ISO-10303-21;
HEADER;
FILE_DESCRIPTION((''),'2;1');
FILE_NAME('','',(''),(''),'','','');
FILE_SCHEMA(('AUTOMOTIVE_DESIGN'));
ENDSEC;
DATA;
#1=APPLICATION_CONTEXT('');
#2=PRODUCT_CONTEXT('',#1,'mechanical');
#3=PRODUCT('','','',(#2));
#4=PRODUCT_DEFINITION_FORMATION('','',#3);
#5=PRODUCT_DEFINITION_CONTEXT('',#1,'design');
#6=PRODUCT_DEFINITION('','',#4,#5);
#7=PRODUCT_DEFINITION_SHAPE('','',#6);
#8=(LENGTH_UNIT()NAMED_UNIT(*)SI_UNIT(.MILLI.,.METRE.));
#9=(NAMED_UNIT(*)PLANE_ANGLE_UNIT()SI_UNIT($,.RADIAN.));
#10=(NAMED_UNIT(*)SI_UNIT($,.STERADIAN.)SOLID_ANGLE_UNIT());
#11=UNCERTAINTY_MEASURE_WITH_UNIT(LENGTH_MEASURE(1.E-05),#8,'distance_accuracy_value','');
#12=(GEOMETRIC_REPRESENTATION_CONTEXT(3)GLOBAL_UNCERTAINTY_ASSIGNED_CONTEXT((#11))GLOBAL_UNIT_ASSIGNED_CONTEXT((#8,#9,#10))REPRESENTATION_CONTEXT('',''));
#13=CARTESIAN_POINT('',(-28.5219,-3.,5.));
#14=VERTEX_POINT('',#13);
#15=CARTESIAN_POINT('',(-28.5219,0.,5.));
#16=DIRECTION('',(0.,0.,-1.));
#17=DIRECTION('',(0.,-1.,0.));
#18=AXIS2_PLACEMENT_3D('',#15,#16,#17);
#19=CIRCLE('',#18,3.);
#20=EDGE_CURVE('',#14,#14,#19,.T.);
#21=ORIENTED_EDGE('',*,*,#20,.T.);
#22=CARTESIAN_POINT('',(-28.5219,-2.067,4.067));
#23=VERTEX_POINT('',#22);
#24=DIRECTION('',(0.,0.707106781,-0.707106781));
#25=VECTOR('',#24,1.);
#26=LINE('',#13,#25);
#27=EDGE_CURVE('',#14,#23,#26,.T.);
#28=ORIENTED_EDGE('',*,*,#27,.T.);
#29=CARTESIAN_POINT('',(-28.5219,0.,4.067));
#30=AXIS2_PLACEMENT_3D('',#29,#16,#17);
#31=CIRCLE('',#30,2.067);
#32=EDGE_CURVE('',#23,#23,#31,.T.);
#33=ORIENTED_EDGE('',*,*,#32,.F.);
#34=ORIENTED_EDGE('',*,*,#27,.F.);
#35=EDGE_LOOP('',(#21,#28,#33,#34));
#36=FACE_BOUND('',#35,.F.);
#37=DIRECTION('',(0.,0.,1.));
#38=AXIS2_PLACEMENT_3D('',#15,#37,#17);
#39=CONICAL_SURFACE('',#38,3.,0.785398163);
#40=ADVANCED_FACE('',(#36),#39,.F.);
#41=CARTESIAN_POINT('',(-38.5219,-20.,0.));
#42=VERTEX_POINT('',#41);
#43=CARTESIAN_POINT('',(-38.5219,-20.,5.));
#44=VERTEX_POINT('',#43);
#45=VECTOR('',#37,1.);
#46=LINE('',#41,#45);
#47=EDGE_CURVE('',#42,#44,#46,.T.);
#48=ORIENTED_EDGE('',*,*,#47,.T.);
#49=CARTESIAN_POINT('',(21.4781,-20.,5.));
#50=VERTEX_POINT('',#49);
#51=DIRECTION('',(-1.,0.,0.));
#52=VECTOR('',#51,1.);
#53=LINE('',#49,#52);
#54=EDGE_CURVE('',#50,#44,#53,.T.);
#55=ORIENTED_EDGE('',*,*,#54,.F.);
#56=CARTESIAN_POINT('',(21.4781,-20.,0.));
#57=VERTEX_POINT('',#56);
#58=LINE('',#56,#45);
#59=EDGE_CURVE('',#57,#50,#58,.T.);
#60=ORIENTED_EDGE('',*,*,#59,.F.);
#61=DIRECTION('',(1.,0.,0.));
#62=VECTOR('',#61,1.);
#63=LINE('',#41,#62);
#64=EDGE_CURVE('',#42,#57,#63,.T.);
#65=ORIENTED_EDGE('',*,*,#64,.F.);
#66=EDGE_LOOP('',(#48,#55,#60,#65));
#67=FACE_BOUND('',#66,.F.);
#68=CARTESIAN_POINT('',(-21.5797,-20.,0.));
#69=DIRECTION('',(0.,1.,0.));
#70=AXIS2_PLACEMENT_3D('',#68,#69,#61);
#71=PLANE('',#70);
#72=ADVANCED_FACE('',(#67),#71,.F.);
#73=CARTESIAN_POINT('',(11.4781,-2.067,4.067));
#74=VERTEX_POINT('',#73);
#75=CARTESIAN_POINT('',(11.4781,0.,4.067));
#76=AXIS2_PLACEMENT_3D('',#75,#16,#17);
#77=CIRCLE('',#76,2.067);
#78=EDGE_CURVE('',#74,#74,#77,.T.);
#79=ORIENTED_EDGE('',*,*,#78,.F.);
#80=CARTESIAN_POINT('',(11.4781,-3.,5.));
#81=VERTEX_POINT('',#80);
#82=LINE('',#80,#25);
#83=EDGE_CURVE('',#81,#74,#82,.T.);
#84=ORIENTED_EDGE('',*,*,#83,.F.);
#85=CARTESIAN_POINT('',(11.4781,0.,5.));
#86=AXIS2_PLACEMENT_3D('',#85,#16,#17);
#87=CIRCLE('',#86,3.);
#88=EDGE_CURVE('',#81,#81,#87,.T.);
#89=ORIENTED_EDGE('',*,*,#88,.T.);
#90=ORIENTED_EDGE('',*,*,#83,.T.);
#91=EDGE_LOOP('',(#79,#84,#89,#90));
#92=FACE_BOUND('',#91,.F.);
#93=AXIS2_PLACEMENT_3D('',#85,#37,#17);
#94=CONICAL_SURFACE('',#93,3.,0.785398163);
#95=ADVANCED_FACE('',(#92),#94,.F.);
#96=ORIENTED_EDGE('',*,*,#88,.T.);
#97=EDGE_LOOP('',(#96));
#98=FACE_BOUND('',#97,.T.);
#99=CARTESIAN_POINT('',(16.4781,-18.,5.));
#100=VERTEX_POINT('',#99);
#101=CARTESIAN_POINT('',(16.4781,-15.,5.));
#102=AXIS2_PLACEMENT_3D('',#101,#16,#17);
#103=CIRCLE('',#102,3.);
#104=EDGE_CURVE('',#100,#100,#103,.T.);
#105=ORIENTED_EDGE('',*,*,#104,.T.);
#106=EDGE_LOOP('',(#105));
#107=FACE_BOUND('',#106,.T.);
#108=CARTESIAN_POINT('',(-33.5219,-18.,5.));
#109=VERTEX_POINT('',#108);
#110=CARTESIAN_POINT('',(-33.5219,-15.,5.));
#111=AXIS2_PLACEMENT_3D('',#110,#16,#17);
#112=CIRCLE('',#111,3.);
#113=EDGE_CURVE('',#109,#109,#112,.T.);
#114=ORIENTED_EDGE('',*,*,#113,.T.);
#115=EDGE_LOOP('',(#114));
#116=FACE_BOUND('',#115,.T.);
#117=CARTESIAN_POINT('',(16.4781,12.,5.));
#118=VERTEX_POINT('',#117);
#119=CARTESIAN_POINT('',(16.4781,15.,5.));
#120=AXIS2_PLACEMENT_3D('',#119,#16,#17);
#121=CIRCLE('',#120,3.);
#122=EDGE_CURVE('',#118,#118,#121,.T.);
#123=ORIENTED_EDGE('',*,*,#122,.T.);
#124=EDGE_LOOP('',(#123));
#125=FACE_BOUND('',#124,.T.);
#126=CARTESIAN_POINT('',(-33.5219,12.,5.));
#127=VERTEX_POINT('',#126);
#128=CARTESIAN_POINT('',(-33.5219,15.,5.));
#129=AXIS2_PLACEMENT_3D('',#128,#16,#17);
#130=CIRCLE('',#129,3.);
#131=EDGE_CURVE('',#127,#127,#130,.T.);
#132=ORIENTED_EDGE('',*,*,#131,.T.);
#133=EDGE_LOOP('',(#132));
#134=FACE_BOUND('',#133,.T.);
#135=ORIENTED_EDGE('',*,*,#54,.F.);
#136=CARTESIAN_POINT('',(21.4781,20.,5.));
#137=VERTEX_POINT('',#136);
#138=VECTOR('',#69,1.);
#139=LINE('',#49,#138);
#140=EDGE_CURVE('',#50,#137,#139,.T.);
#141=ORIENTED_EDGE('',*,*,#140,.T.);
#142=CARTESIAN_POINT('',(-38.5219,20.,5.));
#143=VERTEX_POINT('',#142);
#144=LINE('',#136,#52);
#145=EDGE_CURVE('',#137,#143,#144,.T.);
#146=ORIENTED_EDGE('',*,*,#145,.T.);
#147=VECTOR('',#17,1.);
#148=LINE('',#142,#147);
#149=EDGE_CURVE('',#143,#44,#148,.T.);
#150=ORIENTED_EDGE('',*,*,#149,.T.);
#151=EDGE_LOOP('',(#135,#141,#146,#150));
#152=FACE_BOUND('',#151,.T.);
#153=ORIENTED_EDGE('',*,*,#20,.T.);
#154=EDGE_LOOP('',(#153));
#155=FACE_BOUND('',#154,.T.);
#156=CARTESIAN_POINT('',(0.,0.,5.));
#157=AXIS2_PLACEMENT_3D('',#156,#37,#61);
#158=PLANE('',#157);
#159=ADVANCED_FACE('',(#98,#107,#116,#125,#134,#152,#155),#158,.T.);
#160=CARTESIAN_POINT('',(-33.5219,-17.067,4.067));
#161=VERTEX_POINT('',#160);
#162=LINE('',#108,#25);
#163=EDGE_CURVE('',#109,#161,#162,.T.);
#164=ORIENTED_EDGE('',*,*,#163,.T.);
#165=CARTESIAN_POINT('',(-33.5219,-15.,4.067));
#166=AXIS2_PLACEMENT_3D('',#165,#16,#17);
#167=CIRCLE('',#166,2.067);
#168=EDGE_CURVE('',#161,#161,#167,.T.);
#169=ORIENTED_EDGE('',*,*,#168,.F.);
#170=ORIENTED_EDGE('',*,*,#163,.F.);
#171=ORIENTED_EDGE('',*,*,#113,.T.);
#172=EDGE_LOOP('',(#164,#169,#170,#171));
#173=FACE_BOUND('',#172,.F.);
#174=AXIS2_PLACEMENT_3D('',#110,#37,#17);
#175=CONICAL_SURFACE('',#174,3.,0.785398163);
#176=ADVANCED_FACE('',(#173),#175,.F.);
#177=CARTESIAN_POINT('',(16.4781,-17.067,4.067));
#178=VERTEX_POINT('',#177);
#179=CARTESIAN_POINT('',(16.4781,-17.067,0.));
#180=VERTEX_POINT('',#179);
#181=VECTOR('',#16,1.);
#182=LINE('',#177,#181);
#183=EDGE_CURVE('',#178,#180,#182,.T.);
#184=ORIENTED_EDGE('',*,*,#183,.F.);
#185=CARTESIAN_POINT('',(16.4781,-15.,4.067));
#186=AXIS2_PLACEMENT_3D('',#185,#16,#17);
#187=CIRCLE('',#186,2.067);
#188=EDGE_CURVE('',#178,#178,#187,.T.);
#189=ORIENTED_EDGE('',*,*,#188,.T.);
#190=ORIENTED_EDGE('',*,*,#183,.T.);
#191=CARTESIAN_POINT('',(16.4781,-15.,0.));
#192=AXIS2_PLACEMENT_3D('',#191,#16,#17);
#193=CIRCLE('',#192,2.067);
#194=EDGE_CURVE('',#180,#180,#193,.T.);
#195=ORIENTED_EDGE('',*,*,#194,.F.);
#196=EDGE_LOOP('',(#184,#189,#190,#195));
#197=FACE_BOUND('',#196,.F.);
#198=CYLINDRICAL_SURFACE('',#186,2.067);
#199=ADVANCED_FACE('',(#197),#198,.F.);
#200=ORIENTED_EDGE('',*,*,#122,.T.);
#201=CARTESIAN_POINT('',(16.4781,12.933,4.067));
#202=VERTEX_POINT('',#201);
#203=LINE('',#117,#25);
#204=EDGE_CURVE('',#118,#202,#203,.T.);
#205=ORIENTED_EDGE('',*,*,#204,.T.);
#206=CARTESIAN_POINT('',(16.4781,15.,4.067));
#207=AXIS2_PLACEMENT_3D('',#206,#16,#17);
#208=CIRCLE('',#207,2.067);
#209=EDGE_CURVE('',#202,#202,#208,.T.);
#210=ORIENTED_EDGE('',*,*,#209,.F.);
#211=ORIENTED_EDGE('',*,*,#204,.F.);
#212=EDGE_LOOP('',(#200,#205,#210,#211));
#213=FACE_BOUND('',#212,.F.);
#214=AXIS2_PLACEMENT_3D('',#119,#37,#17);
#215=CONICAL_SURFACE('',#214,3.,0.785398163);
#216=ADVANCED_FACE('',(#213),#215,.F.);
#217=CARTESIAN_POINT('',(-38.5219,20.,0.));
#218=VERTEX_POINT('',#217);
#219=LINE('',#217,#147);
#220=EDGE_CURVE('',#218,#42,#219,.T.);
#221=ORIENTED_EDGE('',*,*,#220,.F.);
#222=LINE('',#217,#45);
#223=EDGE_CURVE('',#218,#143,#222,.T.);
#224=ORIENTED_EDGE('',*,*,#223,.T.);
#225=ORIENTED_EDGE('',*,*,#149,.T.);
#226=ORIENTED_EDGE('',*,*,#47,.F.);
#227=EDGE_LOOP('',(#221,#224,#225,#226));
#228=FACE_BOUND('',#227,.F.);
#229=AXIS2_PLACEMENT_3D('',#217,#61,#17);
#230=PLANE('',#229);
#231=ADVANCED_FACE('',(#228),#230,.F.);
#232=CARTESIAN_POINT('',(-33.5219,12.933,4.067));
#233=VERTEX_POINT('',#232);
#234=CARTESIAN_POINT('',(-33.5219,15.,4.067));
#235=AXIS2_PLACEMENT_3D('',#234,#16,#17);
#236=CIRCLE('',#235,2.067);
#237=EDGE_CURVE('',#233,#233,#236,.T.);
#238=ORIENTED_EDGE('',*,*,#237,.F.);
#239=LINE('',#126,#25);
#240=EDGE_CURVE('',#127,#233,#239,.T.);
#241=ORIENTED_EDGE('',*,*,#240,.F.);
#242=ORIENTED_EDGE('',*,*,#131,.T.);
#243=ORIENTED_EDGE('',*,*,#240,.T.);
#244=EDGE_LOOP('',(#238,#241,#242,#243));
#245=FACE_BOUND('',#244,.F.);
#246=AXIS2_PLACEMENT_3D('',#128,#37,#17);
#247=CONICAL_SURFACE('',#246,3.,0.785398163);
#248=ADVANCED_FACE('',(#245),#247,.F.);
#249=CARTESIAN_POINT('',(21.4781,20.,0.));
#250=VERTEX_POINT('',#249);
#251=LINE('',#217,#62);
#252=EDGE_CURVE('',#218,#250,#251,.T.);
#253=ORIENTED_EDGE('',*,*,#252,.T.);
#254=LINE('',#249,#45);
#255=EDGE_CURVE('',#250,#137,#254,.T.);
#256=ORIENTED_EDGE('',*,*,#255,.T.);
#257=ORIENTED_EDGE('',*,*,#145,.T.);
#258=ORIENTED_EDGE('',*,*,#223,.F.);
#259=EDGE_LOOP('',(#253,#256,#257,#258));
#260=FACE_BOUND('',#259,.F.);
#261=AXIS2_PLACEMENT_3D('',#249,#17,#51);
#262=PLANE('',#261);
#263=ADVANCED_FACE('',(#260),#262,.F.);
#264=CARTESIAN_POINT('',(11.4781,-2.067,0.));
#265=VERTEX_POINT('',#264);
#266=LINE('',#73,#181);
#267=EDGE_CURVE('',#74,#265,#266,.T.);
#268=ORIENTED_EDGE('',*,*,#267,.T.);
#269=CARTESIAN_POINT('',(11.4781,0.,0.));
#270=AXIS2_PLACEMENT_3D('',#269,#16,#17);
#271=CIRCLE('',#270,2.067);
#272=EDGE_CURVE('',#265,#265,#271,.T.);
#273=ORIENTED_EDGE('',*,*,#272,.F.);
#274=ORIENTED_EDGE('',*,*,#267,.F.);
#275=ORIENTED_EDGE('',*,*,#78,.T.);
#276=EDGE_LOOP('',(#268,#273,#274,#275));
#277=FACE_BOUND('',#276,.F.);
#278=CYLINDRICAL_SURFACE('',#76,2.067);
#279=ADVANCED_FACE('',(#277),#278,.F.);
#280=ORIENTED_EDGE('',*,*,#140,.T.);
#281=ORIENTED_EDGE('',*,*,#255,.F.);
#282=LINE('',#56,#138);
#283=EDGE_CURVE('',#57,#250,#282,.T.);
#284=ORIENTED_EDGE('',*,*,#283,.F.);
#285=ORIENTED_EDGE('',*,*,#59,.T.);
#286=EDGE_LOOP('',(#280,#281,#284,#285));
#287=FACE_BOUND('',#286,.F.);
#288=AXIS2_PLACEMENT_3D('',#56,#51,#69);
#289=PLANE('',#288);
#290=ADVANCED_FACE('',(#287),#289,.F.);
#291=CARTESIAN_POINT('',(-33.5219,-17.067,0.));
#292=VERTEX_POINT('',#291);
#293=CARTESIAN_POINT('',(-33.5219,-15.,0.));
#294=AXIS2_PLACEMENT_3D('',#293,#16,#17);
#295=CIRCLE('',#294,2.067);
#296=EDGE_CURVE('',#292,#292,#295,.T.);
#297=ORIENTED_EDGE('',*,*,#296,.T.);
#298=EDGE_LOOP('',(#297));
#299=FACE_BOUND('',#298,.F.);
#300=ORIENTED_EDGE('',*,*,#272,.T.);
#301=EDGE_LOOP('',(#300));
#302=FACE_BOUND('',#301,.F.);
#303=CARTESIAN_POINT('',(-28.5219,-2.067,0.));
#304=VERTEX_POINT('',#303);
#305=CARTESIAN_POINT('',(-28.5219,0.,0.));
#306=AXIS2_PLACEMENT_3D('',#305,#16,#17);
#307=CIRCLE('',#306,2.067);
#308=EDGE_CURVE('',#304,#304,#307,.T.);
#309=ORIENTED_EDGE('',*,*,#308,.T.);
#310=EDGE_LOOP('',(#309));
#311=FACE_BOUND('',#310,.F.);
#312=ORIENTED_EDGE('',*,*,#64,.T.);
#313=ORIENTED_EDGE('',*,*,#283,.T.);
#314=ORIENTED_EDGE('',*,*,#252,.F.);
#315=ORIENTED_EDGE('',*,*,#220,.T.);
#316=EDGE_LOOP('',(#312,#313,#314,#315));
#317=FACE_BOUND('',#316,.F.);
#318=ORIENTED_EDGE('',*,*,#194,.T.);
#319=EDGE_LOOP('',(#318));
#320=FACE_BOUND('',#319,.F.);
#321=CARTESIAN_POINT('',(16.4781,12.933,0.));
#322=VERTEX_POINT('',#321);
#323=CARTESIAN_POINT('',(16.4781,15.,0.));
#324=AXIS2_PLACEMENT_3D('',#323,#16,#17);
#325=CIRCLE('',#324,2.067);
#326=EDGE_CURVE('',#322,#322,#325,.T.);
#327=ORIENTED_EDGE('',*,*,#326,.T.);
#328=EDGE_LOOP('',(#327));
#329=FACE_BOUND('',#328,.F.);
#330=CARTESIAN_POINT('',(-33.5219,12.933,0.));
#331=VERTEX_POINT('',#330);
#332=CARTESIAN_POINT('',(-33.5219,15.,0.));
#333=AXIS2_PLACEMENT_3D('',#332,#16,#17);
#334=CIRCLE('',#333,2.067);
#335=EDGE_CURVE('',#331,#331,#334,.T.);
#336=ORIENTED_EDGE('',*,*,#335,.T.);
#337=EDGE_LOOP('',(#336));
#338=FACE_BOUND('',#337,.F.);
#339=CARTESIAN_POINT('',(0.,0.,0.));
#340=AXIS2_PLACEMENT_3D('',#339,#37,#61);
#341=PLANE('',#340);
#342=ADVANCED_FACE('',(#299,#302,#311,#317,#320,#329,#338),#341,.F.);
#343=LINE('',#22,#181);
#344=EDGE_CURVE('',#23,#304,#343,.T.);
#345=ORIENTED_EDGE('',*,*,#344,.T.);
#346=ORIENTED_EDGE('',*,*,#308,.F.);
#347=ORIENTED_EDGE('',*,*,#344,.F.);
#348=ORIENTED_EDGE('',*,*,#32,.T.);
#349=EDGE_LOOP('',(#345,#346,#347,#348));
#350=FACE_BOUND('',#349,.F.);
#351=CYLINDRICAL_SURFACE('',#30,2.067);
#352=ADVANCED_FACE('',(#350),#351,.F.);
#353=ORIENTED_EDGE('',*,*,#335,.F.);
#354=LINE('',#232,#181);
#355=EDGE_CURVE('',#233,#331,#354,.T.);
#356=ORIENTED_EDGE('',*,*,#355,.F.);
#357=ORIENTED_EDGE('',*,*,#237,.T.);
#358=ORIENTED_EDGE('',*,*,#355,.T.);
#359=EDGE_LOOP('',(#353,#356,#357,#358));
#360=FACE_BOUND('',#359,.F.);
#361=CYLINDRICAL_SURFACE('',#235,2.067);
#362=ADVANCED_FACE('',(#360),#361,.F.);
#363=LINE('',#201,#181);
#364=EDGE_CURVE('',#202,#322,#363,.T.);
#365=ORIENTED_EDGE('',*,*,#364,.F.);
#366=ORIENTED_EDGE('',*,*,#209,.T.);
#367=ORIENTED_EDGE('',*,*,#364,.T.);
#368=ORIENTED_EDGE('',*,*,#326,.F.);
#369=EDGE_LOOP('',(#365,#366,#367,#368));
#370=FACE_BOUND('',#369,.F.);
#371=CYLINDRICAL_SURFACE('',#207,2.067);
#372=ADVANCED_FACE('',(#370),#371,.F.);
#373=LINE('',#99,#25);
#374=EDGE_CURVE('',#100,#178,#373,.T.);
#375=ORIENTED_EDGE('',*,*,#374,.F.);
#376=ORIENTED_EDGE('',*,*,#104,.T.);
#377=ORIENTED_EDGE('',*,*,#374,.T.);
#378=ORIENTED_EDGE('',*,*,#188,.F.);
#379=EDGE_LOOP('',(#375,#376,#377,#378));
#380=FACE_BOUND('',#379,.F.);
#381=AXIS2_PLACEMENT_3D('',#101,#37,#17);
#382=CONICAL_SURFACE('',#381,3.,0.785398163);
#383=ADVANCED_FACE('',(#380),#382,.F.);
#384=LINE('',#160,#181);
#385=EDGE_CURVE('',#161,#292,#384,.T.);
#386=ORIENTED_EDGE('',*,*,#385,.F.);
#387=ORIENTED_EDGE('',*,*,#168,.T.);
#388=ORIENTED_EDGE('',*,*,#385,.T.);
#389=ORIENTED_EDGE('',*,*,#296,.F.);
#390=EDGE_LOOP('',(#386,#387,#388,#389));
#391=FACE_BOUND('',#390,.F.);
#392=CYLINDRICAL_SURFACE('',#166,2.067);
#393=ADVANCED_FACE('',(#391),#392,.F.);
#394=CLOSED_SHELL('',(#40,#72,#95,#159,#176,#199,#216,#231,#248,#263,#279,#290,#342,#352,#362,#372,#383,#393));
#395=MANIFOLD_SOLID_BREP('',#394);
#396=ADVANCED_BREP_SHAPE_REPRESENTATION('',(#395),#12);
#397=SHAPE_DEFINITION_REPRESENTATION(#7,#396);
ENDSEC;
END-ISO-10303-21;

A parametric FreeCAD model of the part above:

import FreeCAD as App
import Part
import Sketcher
from FreeCAD import Vector


def add_polygon(sketch, points):
    """Adds a closed chain of lines whose ends are joined by coincident constraints."""
    first, n = sketch.GeometryCount, len(points)
    for a, b in zip(points, points[1:] + points[:1]):
        sketch.addGeometry(Part.LineSegment(App.Vector(*a, 0), App.Vector(*b, 0)), False)
    for i in range(n):
        sketch.addConstraint(Sketcher.Constraint("Coincident", first + i, 2, first + (i + 1) % n, 1))

doc = App.newDocument("Part")
params = doc.addObject("Spreadsheet::Sheet", "Params")
for row, (alias, value) in enumerate([
    ("sketch1_width", "60 mm"),
    ("sketch1_height", "40 mm"),
    ("pad1_length", "5 mm"),
    ("hole_diameter", "4.134 mm"),
    ("hole_csink_diameter", "6 mm"),
    ("hole2_diameter", "4.134 mm"),
    ("hole2_csink_diameter", "6 mm"),
], start=1):
    params.set(f"A{row}", alias)
    params.set(f"B{row}", "=" + value)
    params.setAlias(f"B{row}", alias)

body = doc.addObject("PartDesign::Body", "Body")

# Sketch on XY plane
sketch1 = body.newObject("Sketcher::SketchObject", "Sketch")
sketch1.AttachmentSupport = (doc.getObject("XY_Plane"), [""])
sketch1.MapMode = "FlatFace"
add_polygon(sketch1, [(-39, -20), (21, -20), (21, 20), (-39, 20)])  # lines 0-3
sketch1.addConstraint(Sketcher.Constraint("Horizontal", 0))
sketch1.addConstraint(Sketcher.Constraint("Vertical", 1))
sketch1.addConstraint(Sketcher.Constraint("Horizontal", 2))
sketch1.addConstraint(Sketcher.Constraint("Vertical", 3))
sketch1.addConstraint(Sketcher.Constraint("DistanceX", 0, 1, 0, 2, 60.0))
sketch1.addConstraint(Sketcher.Constraint("DistanceY", 1, 1, 1, 2, 40.0))
sketch1.addConstraint(Sketcher.Constraint("DistanceY", 0, 2, -1, 1, 20.0))
sketch1.addConstraint(Sketcher.Constraint("DistanceX", -1, 1, 0, 2, 21.478))
sketch1.setExpression("Constraints[8]", "Params.sketch1_width")
sketch1.setExpression("Constraints[9]", "Params.sketch1_height")
pad1 = body.newObject("PartDesign::Pad", "Pad")
pad1.Profile = sketch1
pad1.setExpression("Length", "Params.pad1_length")

# Sketch on XY plane
sketch2 = body.newObject("Sketcher::SketchObject", "Sketch001")
sketch2.AttachmentSupport = (doc.getObject("XY_Plane"), [""])
sketch2.MapMode = "FlatFace"
sketch2.AttachmentOffset = App.Placement(Vector(0, 0, 5), App.Rotation())
sketch2.addGeometry(Part.Circle(Vector(16.5, -15, 0), Vector(0, 0, 1), 2.1), False)
sketch2.addGeometry(Part.Circle(Vector(-33.5, -15, 0), Vector(0, 0, 1), 2.1), False)
sketch2.addGeometry(Part.Circle(Vector(16.5, 15, 0), Vector(0, 0, 1), 2.1), False)
sketch2.addGeometry(Part.Circle(Vector(-33.5, 15, 0), Vector(0, 0, 1), 2.1), False)
sketch2.addConstraint(Sketcher.Constraint("Equal", 0, 1))
sketch2.addConstraint(Sketcher.Constraint("Equal", 1, 2))
sketch2.addConstraint(Sketcher.Constraint("Equal", 2, 3))
sketch2.addConstraint(Sketcher.Constraint("Symmetric", 0, 3, 2, 3, -1))
sketch2.addConstraint(Sketcher.Constraint("Symmetric", 1, 3, 3, 3, -1))
sketch2.addConstraint(Sketcher.Constraint("Horizontal", 0, 3, 1, 3))
sketch2.addConstraint(Sketcher.Constraint("Diameter", 0, 4.134))
sketch2.addConstraint(Sketcher.Constraint("DistanceY", 0, 3, -1, 1, 15.0))
sketch2.addConstraint(Sketcher.Constraint("DistanceX", 1, 3, 0, 3, 50.0))
sketch2.addConstraint(Sketcher.Constraint("DistanceX", -1, 1, 0, 3, 16.478))
doc.recompute()
hole = body.newObject("PartDesign::Hole", "Hole")
hole.Profile = sketch2
hole.ThreadType = "None"
hole.setExpression("Diameter", "Params.hole_diameter")
hole.DepthType = "ThroughAll"
hole.HoleCutType = "Countersink"
hole.setExpression("HoleCutDiameter", "Params.hole_csink_diameter")
hole.HoleCutCountersinkAngle = 90

# Sketch on XY plane
sketch3 = body.newObject("Sketcher::SketchObject", "Sketch002")
sketch3.AttachmentSupport = (doc.getObject("XY_Plane"), [""])
sketch3.MapMode = "FlatFace"
sketch3.AttachmentOffset = App.Placement(Vector(0, 0, 5), App.Rotation())
sketch3.addGeometry(Part.Circle(Vector(11.5, 0, 0), Vector(0, 0, 1), 2.1), False)
sketch3.addGeometry(Part.Circle(Vector(-28.5, 0, 0), Vector(0, 0, 1), 2.1), False)
sketch3.addConstraint(Sketcher.Constraint("Equal", 0, 1))
sketch3.addConstraint(Sketcher.Constraint("PointOnObject", 0, 3, -1))
sketch3.addConstraint(Sketcher.Constraint("PointOnObject", 1, 3, -1))
sketch3.addConstraint(Sketcher.Constraint("Diameter", 0, 4.134))
sketch3.addConstraint(Sketcher.Constraint("DistanceX", 1, 3, 0, 3, 40.0))
sketch3.addConstraint(Sketcher.Constraint("DistanceX", -1, 1, 0, 3, 11.478))
doc.recompute()
hole2 = body.newObject("PartDesign::Hole", "Hole001")
hole2.Profile = sketch3
hole2.ThreadType = "None"
hole2.setExpression("Diameter", "Params.hole2_diameter")
hole2.DepthType = "ThroughAll"
hole2.HoleCutType = "Countersink"
hole2.setExpression("HoleCutDiameter", "Params.hole2_csink_diameter")
hole2.HoleCutCountersinkAngle = 90

doc.recompute()
